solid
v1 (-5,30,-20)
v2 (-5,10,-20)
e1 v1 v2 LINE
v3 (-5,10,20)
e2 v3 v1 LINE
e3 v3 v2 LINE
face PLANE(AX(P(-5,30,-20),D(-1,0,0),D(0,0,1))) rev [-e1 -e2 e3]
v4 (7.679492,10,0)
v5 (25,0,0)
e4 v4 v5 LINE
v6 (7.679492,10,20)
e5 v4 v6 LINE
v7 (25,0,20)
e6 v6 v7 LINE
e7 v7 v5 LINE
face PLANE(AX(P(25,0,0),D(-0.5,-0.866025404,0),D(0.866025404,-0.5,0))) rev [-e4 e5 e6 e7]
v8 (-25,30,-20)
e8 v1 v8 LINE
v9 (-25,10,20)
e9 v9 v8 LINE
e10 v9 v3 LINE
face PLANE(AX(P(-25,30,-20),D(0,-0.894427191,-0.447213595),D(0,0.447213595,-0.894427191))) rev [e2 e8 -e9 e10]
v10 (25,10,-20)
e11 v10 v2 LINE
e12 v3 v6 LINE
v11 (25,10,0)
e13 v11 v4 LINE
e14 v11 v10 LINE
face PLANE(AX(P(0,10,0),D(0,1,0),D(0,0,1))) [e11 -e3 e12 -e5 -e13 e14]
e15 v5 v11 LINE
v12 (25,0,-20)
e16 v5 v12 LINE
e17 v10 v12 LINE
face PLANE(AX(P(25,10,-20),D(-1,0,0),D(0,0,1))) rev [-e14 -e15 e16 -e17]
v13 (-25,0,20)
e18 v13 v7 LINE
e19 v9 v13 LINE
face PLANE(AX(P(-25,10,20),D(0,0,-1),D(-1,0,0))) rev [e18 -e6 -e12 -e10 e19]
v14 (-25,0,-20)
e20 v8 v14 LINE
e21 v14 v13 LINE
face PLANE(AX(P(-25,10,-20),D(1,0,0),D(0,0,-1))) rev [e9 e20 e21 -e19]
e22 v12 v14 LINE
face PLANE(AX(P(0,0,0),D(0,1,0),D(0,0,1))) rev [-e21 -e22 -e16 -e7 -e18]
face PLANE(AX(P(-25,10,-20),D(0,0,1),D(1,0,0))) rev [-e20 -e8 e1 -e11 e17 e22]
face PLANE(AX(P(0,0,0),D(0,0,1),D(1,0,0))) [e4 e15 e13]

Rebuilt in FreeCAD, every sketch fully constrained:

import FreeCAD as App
import Part
import Sketcher
from FreeCAD import Vector
Q = App.Units.Quantity


def add_polygon(sketch, points):
    """Adds a closed chain of lines whose ends are joined by coincident constraints."""
    first, n = sketch.GeometryCount, len(points)
    for a, b in zip(points, points[1:] + points[:1]):
        sketch.addGeometry(Part.LineSegment(App.Vector(*a, 0), App.Vector(*b, 0)), False)
    for i in range(n):
        sketch.addConstraint(Sketcher.Constraint("Coincident", first + i, 2, first + (i + 1) % n, 1))

doc = App.newDocument("Part")
params = doc.addObject("Spreadsheet::Sheet", "Params")
for row, (alias, value) in enumerate([
    ("sketch1_width", "50 mm"),
    ("sketch1_height", "40 mm"),
    ("pad1_length", "10 mm"),
    ("sketch2_height", "10 mm"),
    ("pocket1_length", "20 mm"),
    ("sketch3_width", "20 mm"),
    ("sketch3_height", "40 mm"),
    ("pad2_length", "20 mm"),
    ("sketch4_width", "20 mm"),
    ("sketch4_height", "40 mm"),
    ("pocket2_length", "20 mm"),
], start=1):
    params.set(f"A{row}", alias)
    params.set(f"B{row}", "=" + value)
    params.setAlias(f"B{row}", alias)

body = doc.addObject("PartDesign::Body", "Body")

# Sketch on XZ plane
sketch1 = body.newObject("Sketcher::SketchObject", "Sketch")
sketch1.AttachmentSupport = (doc.getObject("XZ_Plane"), [""])
sketch1.MapMode = "FlatFace"
add_polygon(sketch1, [(-25, -20), (-25, 20), (25, 20), (25, -20)])  # lines 0-3
sketch1.addConstraint([
    Sketcher.Constraint("Vertical", 0),
    Sketcher.Constraint("Horizontal", 1),
    Sketcher.Constraint("Vertical", 2),
    Sketcher.Constraint("Horizontal", 3),
    Sketcher.Constraint("Symmetric", 0, 2, 2, 2, -1, 1),
    Sketcher.Constraint("DistanceX", 1, 1, 1, 2, Q("50 mm")),
    Sketcher.Constraint("DistanceY", 0, 1, 0, 2, Q("40 mm")),
])
sketch1.setExpression("Constraints[9]", "Params.sketch1_width")
sketch1.setExpression("Constraints[10]", "Params.sketch1_height")
pad1 = body.newObject("PartDesign::Pad", "Pad")
pad1.Profile = sketch1
pad1.setExpression("Length", "Params.pad1_length")
pad1.Reversed = True

# Sketch on XY plane
sketch2 = body.newObject("Sketcher::SketchObject", "Sketch001")
sketch2.AttachmentSupport = (doc.getObject("XY_Plane"), [""])
sketch2.MapMode = "FlatFace"
sketch2.AttachmentOffset = App.Placement(Vector(0, 0, 20), App.Rotation())
add_polygon(sketch2, [(8, 10), (25, 0), (25, 10)])  # lines 0-2
sketch2.addConstraint([
    Sketcher.Constraint("Vertical", 1),
    Sketcher.Constraint("Horizontal", 2),
    Sketcher.Constraint("PointOnObject", 0, 2, -1),
    Sketcher.Constraint("DistanceY", 1, 1, 1, 2, Q("10 mm")),
    Sketcher.Constraint("Angle", 0, Q("-30 deg")),
    Sketcher.Constraint("DistanceX", -1, 1, 0, 2, Q("25 mm")),
])
sketch2.setExpression("Constraints[6]", "Params.sketch2_height")
pocket1 = body.newObject("PartDesign::Pocket", "Pocket")
pocket1.Profile = sketch2
pocket1.setExpression("Length", "Params.pocket1_length")

# Sketch on XZ plane
sketch3 = body.newObject("Sketcher::SketchObject", "Sketch002")
sketch3.AttachmentSupport = (doc.getObject("XZ_Plane"), [""])
sketch3.MapMode = "FlatFace"
sketch3.AttachmentOffset = App.Placement(Vector(0, 0, -10), App.Rotation())
add_polygon(sketch3, [(-25, -20), (-25, 20), (-5, 20), (-5, -20)])  # lines 0-3
sketch3.addConstraint([
    Sketcher.Constraint("Vertical", 0),
    Sketcher.Constraint("Horizontal", 1),
    Sketcher.Constraint("Vertical", 2),
    Sketcher.Constraint("Horizontal", 3),
    Sketcher.Constraint("DistanceX", 1, 1, 1, 2, Q("20 mm")),
    Sketcher.Constraint("DistanceY", 0, 1, 0, 2, Q("40 mm")),
    Sketcher.Constraint("DistanceX", 0, 2, -1, 1, Q("25 mm")),
    Sketcher.Constraint("DistanceY", -1, 1, 0, 2, Q("20 mm")),
])
sketch3.setExpression("Constraints[8]", "Params.sketch3_width")
sketch3.setExpression("Constraints[9]", "Params.sketch3_height")
pad2 = body.newObject("PartDesign::Pad", "Pad001")
pad2.Profile = sketch3
pad2.setExpression("Length", "Params.pad2_length")
pad2.Reversed = True

# Sketch on YZ plane
sketch4 = body.newObject("Sketcher::SketchObject", "Sketch003")
sketch4.AttachmentSupport = (doc.getObject("YZ_Plane"), [""])
sketch4.MapMode = "FlatFace"
sketch4.AttachmentOffset = App.Placement(Vector(0, 0, -5), App.Rotation())
add_polygon(sketch4, [(10, 20), (30, -20), (30, 20)])  # lines 0-2
sketch4.addConstraint([
    Sketcher.Constraint("Vertical", 1),
    Sketcher.Constraint("Horizontal", 2),
    Sketcher.Constraint("DistanceX", 2, 2, 2, 1, Q("20 mm")),
    Sketcher.Constraint("DistanceY", 1, 1, 1, 2, Q("40 mm")),
    Sketcher.Constraint("DistanceX", -1, 1, 0, 2, Q("30 mm")),
    Sketcher.Constraint("DistanceY", 0, 2, -1, 1, Q("20 mm")),
])
sketch4.setExpression("Constraints[5]", "Params.sketch4_width")
sketch4.setExpression("Constraints[6]", "Params.sketch4_height")
pocket2 = body.newObject("PartDesign::Pocket", "Pocket001")
pocket2.Profile = sketch4
pocket2.setExpression("Length", "Params.pocket2_length")

doc.recompute()
